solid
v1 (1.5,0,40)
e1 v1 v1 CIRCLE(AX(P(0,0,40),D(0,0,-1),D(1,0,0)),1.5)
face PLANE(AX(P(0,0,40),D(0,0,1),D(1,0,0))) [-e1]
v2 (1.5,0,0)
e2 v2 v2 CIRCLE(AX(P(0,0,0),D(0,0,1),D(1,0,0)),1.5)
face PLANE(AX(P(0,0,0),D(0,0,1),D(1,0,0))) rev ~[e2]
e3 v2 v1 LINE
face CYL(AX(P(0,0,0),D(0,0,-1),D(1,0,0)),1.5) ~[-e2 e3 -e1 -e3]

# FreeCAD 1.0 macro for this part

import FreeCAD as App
import Part
import Sketcher
from FreeCAD import Vector

doc = App.newDocument("Part")
body = doc.addObject("PartDesign::Body", "Body")

# Sketch on XY plane
sketch1 = doc.addObject("Sketcher::SketchObject", "Sketch")
body.addObject(sketch1)
sketch1.AttachmentSupport = (doc.XY_Plane, [""])
sketch1.MapMode = "FlatFace"
sketch1.addGeometry(Part.Circle(Vector(0, 0, 0), Vector(0, 0, 1), 1.5), False)
sketch1.addConstraint([
    Sketcher.Constraint("Coincident", 0, 3, -1, 1),
    Sketcher.Constraint("Diameter", 0, 3.0),
])
pad1 = doc.addObject("PartDesign::Pad", "Pad")
body.addObject(pad1)
pad1.Profile = sketch1
pad1.Length = 40

doc.recompute()
